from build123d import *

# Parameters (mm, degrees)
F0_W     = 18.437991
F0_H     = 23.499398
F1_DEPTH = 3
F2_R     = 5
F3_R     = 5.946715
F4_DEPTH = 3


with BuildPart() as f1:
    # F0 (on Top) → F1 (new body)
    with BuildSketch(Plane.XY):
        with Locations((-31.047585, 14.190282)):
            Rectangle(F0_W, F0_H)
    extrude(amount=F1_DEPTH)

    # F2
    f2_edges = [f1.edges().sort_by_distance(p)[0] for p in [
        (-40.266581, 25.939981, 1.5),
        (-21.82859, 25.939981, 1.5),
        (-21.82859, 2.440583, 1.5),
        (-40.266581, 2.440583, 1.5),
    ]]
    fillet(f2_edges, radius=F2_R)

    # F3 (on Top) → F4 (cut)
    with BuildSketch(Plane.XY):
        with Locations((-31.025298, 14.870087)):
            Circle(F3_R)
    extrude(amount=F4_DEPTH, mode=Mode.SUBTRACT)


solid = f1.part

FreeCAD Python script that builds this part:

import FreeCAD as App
import Part
import Sketcher
from FreeCAD import Vector
Q = App.Units.Quantity


def edges_at(feature, points):
    """Names of the edges that pass closest to the given points."""
    edges = feature.Shape.Edges
    near = lambda p: min(range(len(edges)), key=lambda i: edges[i].distToShape(Part.Vertex(*p))[0])
    return sorted({f"Edge{near(p) + 1}" for p in points})

doc = App.newDocument("Part")
params = doc.addObject("Spreadsheet::Sheet", "Params")
for row, (alias, value) in enumerate([
    ("pad1_length", "3 mm"),
    ("fillet_radius", "5 mm"),
    ("pocket1_length", "3 mm"),
], start=1):
    params.set(f"A{row}", alias)
    params.set(f"B{row}", "=" + value)
    params.setAlias(f"B{row}", alias)

body = doc.addObject("PartDesign::Body", "Body")

sketch1 = doc.addObject("Sketcher::SketchObject", "Sketch")
body.addObject(sketch1)
sketch1.AttachmentSupport = (doc.XY_Plane, [""])
sketch1.MapMode = "FlatFace"
sketch1.addGeometry([
    Part.LineSegment(Vector(-40, 26, 0), Vector(-40, 2, 0)),
    Part.LineSegment(Vector(-40, 2, 0), Vector(-22, 2, 0)),
    Part.LineSegment(Vector(-22, 2, 0), Vector(-22, 26, 0)),
    Part.LineSegment(Vector(-22, 26, 0), Vector(-40, 26, 0)),
], False)
sketch1.addConstraint([
    Sketcher.Constraint("Coincident", 0, 2, 1, 1),
    Sketcher.Constraint("Coincident", 1, 2, 2, 1),
    Sketcher.Constraint("Coincident", 2, 2, 3, 1),
    Sketcher.Constraint("Coincident", 3, 2, 0, 1),
    Sketcher.Constraint("Vertical", 0),
    Sketcher.Constraint("Horizontal", 1),
    Sketcher.Constraint("Vertical", 2),
    Sketcher.Constraint("Horizontal", 3),
    Sketcher.Constraint("DistanceX", 1, 1, 1, 2, Q("18.437991 mm")),
    Sketcher.Constraint("DistanceY", 0, 2, 0, 1, Q("23.499398 mm")),
    Sketcher.Constraint("DistanceX", 0, 2, -1, 1, Q("40.266581 mm")),
    Sketcher.Constraint("DistanceY", -1, 1, 2, 2, Q("25.939981 mm")),
])
pad1 = doc.addObject("PartDesign::Pad", "Pad")
body.addObject(pad1)
pad1.Profile = sketch1
pad1.setExpression("Length", "Params.pad1_length")
doc.recompute()

fillet = doc.addObject("PartDesign::Fillet", "Fillet")
body.addObject(fillet)
fillet.Base = (pad1, edges_at(pad1, [
    (-40.267, 25.94, 1.5),
    (-21.829, 25.94, 1.5),
    (-21.829, 2.441, 1.5),
    (-40.267, 2.441, 1.5),
]))
fillet.setExpression("Radius", "Params.fillet_radius")

sketch2 = doc.addObject("Sketcher::SketchObject", "Sketch001")
body.addObject(sketch2)
sketch2.AttachmentSupport = (doc.XY_Plane, [""])
sketch2.MapMode = "FlatFace"
sketch2.addGeometry(Part.Circle(Vector(-31, 15, 0), Vector(0, 0, 1), 6), False)
sketch2.addConstraint([
    Sketcher.Constraint("Diameter", 0, Q("11.89343 mm")),
    Sketcher.Constraint("DistanceX", 0, 3, -1, 1, Q("31.025298 mm")),
    Sketcher.Constraint("DistanceY", -1, 1, 0, 3, Q("14.870087 mm")),
])
pocket1 = doc.addObject("PartDesign::Pocket", "Pocket")
body.addObject(pocket1)
pocket1.Profile = sketch2
pocket1.setExpression("Length", "Params.pocket1_length")
pocket1.Reversed = True

doc.recompute()
